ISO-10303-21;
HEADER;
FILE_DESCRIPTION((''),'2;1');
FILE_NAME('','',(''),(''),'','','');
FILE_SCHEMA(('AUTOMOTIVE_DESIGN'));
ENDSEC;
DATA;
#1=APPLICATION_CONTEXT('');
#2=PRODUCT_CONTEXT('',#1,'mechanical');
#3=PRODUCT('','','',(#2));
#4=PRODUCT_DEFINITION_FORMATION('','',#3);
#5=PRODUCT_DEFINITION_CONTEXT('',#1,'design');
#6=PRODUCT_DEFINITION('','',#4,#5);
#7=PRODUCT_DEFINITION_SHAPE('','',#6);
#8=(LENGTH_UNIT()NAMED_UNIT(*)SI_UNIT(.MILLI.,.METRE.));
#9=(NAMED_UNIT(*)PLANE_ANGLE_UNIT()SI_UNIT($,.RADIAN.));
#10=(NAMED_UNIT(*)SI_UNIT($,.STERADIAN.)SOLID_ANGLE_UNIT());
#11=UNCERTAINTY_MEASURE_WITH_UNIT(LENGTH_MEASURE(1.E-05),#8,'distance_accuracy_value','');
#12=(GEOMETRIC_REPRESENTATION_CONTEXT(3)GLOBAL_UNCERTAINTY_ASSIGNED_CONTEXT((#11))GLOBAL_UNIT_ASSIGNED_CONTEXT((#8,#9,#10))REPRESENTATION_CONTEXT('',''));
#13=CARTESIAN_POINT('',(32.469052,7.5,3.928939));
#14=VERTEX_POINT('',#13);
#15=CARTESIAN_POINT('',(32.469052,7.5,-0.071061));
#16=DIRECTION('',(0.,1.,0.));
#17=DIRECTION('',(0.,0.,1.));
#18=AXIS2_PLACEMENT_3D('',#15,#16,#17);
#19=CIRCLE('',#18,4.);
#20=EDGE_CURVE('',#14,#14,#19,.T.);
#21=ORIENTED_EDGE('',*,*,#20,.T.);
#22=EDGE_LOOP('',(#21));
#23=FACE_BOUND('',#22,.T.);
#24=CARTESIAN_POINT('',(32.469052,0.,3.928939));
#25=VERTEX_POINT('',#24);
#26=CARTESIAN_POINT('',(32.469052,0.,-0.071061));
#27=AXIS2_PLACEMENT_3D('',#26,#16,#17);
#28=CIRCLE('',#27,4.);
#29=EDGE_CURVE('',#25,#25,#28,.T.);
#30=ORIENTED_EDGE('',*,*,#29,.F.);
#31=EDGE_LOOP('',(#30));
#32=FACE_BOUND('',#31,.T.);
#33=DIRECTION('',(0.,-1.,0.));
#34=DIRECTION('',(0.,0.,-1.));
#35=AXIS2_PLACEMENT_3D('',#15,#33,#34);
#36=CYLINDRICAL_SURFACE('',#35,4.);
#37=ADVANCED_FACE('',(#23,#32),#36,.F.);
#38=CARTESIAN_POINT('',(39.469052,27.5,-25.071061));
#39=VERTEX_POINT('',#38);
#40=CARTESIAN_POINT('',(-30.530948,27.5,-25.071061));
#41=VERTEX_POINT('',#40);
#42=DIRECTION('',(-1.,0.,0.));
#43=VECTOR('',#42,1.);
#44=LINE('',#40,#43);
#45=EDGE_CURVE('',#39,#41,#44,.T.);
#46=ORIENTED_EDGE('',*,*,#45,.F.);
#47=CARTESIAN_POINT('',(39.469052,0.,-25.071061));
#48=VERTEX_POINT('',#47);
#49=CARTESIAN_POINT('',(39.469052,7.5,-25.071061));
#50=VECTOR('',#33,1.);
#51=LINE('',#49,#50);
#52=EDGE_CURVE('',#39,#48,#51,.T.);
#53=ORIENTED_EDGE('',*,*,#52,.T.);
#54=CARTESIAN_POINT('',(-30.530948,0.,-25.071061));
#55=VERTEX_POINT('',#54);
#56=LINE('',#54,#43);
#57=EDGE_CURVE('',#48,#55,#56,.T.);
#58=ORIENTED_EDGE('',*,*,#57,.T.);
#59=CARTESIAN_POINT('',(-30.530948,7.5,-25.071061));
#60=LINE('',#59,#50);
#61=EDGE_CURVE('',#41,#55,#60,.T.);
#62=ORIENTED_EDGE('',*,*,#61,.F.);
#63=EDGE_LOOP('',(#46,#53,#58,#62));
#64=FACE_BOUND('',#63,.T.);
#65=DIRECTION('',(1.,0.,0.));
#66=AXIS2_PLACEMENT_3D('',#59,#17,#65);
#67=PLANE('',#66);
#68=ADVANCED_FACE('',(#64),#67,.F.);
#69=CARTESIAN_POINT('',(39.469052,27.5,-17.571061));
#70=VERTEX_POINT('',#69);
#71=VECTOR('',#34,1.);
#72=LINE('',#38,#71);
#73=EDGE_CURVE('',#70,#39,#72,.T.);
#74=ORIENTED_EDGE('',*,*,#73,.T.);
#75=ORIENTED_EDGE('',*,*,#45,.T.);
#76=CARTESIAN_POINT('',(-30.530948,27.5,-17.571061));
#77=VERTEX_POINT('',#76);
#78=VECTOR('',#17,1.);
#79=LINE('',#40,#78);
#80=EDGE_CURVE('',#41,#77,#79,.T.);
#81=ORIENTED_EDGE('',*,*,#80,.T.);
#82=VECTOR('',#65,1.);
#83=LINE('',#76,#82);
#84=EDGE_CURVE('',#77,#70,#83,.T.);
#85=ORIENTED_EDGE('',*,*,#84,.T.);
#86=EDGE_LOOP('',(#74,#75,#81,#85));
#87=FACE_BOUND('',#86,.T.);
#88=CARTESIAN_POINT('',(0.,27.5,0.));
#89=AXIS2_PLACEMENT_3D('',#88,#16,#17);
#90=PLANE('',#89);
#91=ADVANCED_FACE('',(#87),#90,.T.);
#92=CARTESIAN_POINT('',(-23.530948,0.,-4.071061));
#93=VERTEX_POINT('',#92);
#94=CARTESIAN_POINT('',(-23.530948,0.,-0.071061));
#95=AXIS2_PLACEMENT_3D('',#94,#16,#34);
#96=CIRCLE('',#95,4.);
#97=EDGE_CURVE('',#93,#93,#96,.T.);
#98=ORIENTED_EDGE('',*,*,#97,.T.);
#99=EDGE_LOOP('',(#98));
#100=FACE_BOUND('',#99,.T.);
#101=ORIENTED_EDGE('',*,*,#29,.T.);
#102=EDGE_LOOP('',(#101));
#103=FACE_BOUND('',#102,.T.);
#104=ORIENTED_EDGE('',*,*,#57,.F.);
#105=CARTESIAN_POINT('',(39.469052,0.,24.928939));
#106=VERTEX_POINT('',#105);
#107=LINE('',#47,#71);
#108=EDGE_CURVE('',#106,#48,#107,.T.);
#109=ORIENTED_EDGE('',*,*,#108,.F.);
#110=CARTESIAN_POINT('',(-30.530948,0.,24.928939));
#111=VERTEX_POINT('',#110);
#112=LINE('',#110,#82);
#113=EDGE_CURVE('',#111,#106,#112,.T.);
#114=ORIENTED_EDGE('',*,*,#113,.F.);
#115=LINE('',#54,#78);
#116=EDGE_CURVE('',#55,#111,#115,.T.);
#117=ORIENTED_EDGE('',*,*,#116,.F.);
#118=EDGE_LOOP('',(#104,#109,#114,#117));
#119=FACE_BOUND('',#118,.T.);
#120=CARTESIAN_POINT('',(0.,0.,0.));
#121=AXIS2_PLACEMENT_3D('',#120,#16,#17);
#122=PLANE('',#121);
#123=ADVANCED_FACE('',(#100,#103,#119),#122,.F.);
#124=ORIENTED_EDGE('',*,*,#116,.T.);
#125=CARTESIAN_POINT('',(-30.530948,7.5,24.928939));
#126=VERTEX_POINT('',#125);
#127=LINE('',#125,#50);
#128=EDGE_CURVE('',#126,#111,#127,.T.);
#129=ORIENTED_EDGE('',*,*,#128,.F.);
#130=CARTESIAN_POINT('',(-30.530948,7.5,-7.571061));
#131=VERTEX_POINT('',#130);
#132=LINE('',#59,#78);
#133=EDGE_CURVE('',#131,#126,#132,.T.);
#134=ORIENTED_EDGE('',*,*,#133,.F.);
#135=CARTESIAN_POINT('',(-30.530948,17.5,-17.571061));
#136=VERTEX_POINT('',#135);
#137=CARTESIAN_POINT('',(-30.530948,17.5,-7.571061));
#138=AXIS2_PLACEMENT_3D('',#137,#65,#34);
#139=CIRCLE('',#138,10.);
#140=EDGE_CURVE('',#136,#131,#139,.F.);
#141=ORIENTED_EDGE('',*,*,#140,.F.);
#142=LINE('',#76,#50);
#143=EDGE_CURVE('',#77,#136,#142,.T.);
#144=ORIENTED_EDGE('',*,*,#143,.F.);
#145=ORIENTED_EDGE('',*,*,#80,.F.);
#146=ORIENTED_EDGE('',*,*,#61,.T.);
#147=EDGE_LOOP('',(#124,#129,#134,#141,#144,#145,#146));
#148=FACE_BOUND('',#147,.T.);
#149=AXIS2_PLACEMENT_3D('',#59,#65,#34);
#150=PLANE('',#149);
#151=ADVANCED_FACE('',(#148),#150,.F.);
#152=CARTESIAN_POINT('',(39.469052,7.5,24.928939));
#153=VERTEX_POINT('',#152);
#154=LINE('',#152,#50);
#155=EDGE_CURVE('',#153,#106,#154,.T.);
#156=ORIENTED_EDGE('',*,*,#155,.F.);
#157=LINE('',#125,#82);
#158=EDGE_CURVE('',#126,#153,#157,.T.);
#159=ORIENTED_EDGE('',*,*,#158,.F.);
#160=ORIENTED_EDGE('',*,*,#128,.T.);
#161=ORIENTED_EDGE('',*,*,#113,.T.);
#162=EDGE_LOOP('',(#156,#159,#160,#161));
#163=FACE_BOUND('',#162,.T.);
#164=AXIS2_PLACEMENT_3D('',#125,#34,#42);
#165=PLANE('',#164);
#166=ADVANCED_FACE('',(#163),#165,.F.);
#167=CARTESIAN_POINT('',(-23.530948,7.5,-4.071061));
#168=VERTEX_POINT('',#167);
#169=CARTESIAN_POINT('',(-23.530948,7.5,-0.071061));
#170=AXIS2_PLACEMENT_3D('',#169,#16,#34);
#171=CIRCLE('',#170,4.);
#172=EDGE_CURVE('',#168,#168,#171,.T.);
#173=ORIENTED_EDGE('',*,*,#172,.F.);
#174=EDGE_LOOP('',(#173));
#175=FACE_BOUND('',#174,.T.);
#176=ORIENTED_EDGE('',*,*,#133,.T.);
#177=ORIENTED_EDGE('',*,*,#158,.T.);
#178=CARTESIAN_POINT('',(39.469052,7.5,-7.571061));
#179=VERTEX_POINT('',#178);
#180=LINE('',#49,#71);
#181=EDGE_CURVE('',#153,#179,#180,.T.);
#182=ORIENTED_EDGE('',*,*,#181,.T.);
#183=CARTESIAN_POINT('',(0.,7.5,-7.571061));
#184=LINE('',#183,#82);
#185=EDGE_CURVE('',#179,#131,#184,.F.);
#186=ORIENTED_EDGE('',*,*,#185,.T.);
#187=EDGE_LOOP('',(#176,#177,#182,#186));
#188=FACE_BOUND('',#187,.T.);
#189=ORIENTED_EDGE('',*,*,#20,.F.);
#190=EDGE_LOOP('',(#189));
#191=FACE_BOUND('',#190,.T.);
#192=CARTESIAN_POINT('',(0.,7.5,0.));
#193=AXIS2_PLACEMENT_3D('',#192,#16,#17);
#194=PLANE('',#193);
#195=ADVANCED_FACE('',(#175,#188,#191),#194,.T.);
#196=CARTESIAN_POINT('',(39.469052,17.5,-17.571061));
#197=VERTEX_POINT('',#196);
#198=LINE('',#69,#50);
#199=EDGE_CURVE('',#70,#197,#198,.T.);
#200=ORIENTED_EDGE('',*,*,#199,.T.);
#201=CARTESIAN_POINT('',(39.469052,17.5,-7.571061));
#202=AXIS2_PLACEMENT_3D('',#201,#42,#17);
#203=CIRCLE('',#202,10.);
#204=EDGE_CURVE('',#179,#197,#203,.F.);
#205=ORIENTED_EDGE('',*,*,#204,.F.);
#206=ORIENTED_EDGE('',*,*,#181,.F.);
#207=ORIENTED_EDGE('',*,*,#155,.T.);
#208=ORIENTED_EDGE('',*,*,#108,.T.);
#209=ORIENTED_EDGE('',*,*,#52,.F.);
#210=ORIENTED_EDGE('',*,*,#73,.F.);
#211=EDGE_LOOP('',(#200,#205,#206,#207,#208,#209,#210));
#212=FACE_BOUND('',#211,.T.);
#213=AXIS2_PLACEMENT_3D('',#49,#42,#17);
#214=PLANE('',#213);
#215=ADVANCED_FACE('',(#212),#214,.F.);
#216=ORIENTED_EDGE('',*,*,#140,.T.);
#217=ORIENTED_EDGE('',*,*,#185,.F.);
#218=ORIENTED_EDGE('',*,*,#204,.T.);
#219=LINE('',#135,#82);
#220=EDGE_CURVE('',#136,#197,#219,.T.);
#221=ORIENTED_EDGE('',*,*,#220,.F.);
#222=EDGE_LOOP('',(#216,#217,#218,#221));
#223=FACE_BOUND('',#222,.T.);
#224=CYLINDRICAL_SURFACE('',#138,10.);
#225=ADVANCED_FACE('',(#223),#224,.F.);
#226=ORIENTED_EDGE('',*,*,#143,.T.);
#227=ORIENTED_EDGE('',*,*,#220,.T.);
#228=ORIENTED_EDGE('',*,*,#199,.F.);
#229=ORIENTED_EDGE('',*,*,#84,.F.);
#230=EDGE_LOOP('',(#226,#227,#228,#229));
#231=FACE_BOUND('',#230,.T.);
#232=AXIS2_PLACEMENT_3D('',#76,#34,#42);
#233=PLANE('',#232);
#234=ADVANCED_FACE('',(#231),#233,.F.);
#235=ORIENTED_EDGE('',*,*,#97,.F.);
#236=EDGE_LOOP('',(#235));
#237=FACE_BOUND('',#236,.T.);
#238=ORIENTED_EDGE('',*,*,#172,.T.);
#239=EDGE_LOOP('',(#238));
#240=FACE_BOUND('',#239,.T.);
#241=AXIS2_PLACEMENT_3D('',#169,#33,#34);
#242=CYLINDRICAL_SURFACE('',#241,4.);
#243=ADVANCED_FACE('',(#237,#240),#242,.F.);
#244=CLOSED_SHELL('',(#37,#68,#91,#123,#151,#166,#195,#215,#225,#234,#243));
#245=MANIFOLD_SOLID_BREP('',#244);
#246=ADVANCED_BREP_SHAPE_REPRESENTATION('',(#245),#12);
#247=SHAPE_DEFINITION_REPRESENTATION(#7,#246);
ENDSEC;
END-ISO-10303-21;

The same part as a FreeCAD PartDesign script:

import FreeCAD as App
import Part
import Sketcher

V = App.Vector
Q = App.Units.Quantity


def edges_at(feature, points):
    """Names of the edges that pass closest to the given points."""
    edges = feature.Shape.Edges
    near = lambda p: min(range(len(edges)), key=lambda i: edges[i].distToShape(Part.Vertex(*p))[0])
    return sorted({f"Edge{near(p) + 1}" for p in points})


def add_polygon(sketch, points):
    """Adds a closed chain of lines whose ends are joined by coincident constraints."""
    first, n = sketch.GeometryCount, len(points)
    for a, b in zip(points, points[1:] + points[:1]):
        sketch.addGeometry(Part.LineSegment(App.Vector(*a, 0), App.Vector(*b, 0)), False)
    for i in range(n):
        sketch.addConstraint(Sketcher.Constraint("Coincident", first + i, 2, first + (i + 1) % n, 1))

doc = App.newDocument("Part")
body = doc.addObject("PartDesign::Body", "Body")

# Sketch on XZ plane
sketch1 = body.newObject("Sketcher::SketchObject", "Sketch")
sketch1.AttachmentSupport = (doc.getObject("XZ_Plane"), [""])
sketch1.MapMode = "FlatFace"
add_polygon(sketch1, [(-30.5, -25.1), (-30.5, 24.9), (39.5, 24.9), (39.5, -25.1)])  # lines 0-3
sketch1.addGeometry(Part.Circle(V(-23.5, -0.1, 0), V(0, 0, 1), 4), False)  # 4
sketch1.addGeometry(Part.Circle(V(32.5, -0.1, 0), V(0, 0, 1), 4), False)  # 5
sketch1.addConstraint(Sketcher.Constraint("Vertical", 0))
sketch1.addConstraint(Sketcher.Constraint("Horizontal", 1))
sketch1.addConstraint(Sketcher.Constraint("Vertical", 2))
sketch1.addConstraint(Sketcher.Constraint("Horizontal", 3))
sketch1.addConstraint(Sketcher.Constraint("Equal", 4, 5))
sketch1.addConstraint(Sketcher.Constraint("Horizontal", 4, 3, 5, 3))
sketch1.addConstraint(Sketcher.Constraint("Diameter", 4, Q("8 mm")))
sketch1.addConstraint(Sketcher.Constraint("DistanceX", 1, 1, 1, 2, Q("70 mm")))
sketch1.addConstraint(Sketcher.Constraint("DistanceY", 0, 1, 0, 2, Q("50 mm")))
sketch1.addConstraint(Sketcher.Constraint("DistanceX", 4, 3, 5, 3, Q("56 mm")))
sketch1.addConstraint(Sketcher.Constraint("DistanceX", 0, 2, 4, 3, Q("7 mm")))
sketch1.addConstraint(Sketcher.Constraint("DistanceY", 4, 3, 0, 2, Q("25 mm")))
sketch1.addConstraint(Sketcher.Constraint("DistanceX", 4, 3, -1, 1, Q("23.530948 mm")))
sketch1.addConstraint(Sketcher.Constraint("DistanceY", 4, 3, -1, 1, Q("0.071061 mm")))
pad1 = body.newObject("PartDesign::Pad", "Pad")
pad1.Profile = sketch1
pad1.Length = 7.5
pad1.Reversed = True

# Sketch on XZ plane
sketch2 = body.newObject("Sketcher::SketchObject", "Sketch001")
sketch2.AttachmentSupport = (doc.getObject("XZ_Plane"), [""])
sketch2.MapMode = "FlatFace"
sketch2.AttachmentOffset = App.Placement(V(0, 0, -7.5), App.Rotation())
add_polygon(sketch2, [(-31, -25), (-31, -18), (39, -18), (39, -25)])  # lines 0-3
sketch2.addConstraint(Sketcher.Constraint("Vertical", 0))
sketch2.addConstraint(Sketcher.Constraint("Horizontal", 1))
sketch2.addConstraint(Sketcher.Constraint("Vertical", 2))
sketch2.addConstraint(Sketcher.Constraint("Horizontal", 3))
sketch2.addConstraint(Sketcher.Constraint("DistanceX", 1, 1, 1, 2, Q("70 mm")))
sketch2.addConstraint(Sketcher.Constraint("DistanceY", 0, 1, 0, 2, Q("7.5 mm")))
sketch2.addConstraint(Sketcher.Constraint("DistanceX", 0, 2, -1, 1, Q("30.530948 mm")))
sketch2.addConstraint(Sketcher.Constraint("DistanceY", 0, 2, -1, 1, Q("17.571061 mm")))
pad2 = body.newObject("PartDesign::Pad", "Pad001")
pad2.Profile = sketch2
pad2.Length = 20
pad2.Reversed = True
doc.recompute()

fillet = body.newObject("PartDesign::Fillet", "Fillet")
fillet.Base = (pad2, edges_at(pad2, [(4.469, 7.5, -17.571)]))
fillet.Radius = 10

doc.recompute()
